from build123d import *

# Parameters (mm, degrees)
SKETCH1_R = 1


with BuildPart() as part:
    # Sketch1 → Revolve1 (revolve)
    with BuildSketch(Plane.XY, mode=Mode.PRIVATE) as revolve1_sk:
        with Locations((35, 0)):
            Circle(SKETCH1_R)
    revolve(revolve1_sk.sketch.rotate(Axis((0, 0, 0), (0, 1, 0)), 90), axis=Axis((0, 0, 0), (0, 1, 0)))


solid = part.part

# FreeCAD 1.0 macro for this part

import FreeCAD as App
import Part
import Sketcher

V = App.Vector
Q = App.Units.Quantity

doc = App.newDocument("Part")
body = doc.addObject("PartDesign::Body", "Body")

# Sketch on XY plane
sketch1 = body.newObject("Sketcher::SketchObject", "Sketch")
sketch1.AttachmentSupport = (doc.getObject("XY_Plane"), [""])
sketch1.MapMode = "FlatFace"
sketch1.addGeometry(Part.Circle(V(35, 0, 0), V(0, 0, 1), 1), False)
sketch1.addConstraint([
    Sketcher.Constraint("PointOnObject", 0, 3, -1),
    Sketcher.Constraint("Diameter", 0, Q("2 mm")),
    Sketcher.Constraint("DistanceX", -1, 1, 0, 3, Q("35 mm")),
])
revolution = body.newObject("PartDesign::Revolution", "Revolution")
revolution.Profile = sketch1
revolution.ReferenceAxis = (sketch1, ["V_Axis"])
revolution.Angle = 360

doc.recompute()
